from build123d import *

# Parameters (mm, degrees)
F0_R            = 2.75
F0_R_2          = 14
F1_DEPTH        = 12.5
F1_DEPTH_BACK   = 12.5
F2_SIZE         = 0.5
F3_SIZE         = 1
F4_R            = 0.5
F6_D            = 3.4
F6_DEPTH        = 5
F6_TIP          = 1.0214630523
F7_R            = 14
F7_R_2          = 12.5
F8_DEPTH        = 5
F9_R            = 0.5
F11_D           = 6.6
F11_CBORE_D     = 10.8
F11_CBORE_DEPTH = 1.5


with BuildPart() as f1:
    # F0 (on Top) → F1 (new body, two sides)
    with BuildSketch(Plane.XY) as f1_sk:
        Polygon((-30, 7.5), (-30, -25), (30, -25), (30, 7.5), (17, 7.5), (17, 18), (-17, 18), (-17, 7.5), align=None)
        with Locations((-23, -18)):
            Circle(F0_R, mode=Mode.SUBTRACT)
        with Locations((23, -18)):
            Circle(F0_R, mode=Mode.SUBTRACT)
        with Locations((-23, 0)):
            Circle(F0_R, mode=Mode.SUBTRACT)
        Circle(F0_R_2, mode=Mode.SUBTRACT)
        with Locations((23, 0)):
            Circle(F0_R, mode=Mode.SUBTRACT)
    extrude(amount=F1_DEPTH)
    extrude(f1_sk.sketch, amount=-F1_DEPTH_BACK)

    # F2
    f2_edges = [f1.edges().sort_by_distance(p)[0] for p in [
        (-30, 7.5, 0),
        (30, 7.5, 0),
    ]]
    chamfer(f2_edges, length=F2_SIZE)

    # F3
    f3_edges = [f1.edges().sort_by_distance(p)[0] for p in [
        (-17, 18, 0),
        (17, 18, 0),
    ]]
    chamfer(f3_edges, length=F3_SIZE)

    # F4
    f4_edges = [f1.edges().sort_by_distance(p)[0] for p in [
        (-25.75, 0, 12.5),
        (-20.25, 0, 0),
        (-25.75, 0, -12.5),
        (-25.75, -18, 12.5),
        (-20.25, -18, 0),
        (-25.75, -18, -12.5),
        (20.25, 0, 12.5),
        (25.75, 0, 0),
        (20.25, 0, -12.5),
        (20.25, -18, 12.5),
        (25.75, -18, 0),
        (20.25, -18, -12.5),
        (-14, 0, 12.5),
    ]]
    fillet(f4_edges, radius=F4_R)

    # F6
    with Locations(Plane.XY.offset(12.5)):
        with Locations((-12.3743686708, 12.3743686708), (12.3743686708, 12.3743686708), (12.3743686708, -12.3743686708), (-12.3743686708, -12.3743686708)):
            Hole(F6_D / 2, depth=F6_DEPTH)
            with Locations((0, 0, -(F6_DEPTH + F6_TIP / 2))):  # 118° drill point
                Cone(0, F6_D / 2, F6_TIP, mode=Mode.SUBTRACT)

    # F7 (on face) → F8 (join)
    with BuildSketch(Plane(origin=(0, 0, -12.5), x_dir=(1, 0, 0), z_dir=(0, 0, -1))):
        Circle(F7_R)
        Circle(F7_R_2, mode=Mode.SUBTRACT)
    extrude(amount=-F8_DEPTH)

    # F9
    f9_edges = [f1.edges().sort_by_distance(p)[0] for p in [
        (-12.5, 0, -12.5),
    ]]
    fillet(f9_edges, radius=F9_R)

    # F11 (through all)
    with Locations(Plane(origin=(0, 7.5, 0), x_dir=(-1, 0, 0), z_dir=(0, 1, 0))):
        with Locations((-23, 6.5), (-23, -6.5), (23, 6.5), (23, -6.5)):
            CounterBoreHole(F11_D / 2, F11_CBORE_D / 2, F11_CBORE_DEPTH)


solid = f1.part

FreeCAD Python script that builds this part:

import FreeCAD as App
import Part
import Sketcher

V = App.Vector


def edges_at(feature, points):
    """Names of the edges that pass closest to the given points."""
    edges = feature.Shape.Edges
    near = lambda p: min(range(len(edges)), key=lambda i: edges[i].distToShape(Part.Vertex(*p))[0])
    return sorted({f"Edge{near(p) + 1}" for p in points})


def add_polygon(sketch, points):
    """Adds a closed chain of lines whose ends are joined by coincident constraints."""
    first, n = sketch.GeometryCount, len(points)
    for a, b in zip(points, points[1:] + points[:1]):
        sketch.addGeometry(Part.LineSegment(App.Vector(*a, 0), App.Vector(*b, 0)), False)
    for i in range(n):
        sketch.addConstraint(Sketcher.Constraint("Coincident", first + i, 2, first + (i + 1) % n, 1))

doc = App.newDocument("Part")
body = doc.addObject("PartDesign::Body", "Body")

sketch1 = body.newObject("Sketcher::SketchObject", "Sketch")
sketch1.AttachmentSupport = (doc.getObject("XY_Plane"), [""])
sketch1.MapMode = "FlatFace"
add_polygon(sketch1, [(-30, 7.5), (-30, -25), (30, -25), (30, 7.5), (17, 7.5), (17, 18), (-17, 18), (-17, 7.5)])
sketch1.addGeometry(Part.Circle(V(-23, -18, 0), V(0, 0, 1), 2.75), False)
sketch1.addGeometry(Part.Circle(V(23, -18, 0), V(0, 0, 1), 2.75), False)
sketch1.addGeometry(Part.Circle(V(-23, 0, 0), V(0, 0, 1), 2.75), False)
sketch1.addGeometry(Part.Circle(V(0, 0, 0), V(0, 0, 1), 14), False)
sketch1.addGeometry(Part.Circle(V(23, 0, 0), V(0, 0, 1), 2.75), False)
sketch1.addConstraint([
    Sketcher.Constraint("Vertical", 0),
    Sketcher.Constraint("Horizontal", 1),
    Sketcher.Constraint("Vertical", 2),
    Sketcher.Constraint("Horizontal", 3),
    Sketcher.Constraint("Vertical", 4),
    Sketcher.Constraint("Horizontal", 5),
    Sketcher.Constraint("Vertical", 6),
    Sketcher.Constraint("Horizontal", 7),
    Sketcher.Constraint("Coincident", 11, 3, -1, 1),
    Sketcher.Constraint("Equal", 8, 9),
    Sketcher.Constraint("Equal", 9, 10),
    Sketcher.Constraint("Equal", 10, 12),
    Sketcher.Constraint("Symmetric", 10, 3, 12, 3, -1, 1),
    Sketcher.Constraint("Symmetric", 8, 3, 9, 3, -2),
    Sketcher.Constraint("Symmetric", 3, 2, 6, 2, -2),
    Sketcher.Constraint("PointOnObject", 10, 3, -1),
    Sketcher.Constraint("Vertical", 8, 3, 10, 3),
    Sketcher.Constraint("Equal", 3, 7),
    Sketcher.Constraint("Diameter", 11, 28.0),
    Sketcher.Constraint("Diameter", 8, 5.5),
    Sketcher.Constraint("DistanceX", 1, 1, 1, 2, 60.0),
    Sketcher.Constraint("DistanceX", 3, 2, 3, 1, 13.0),
    Sketcher.Constraint("DistanceY", 0, 2, 0, 1, 32.5),
    Sketcher.Constraint("DistanceY", 4, 1, 4, 2, 10.5),
    Sketcher.Constraint("DistanceX", 8, 3, -1, 1, 23.0),
    Sketcher.Constraint("DistanceY", 8, 3, -1, 1, 18.0),
    Sketcher.Constraint("DistanceY", 0, 2, -1, 1, 25.0),
])
pad1 = body.newObject("PartDesign::Pad", "Pad")
pad1.Profile = sketch1
pad1.Type = "TwoLengths"
pad1.Length = 12.5
pad1.Length2 = 12.5
doc.recompute()

chamfer = body.newObject("PartDesign::Chamfer", "Chamfer")
chamfer.Base = (pad1, edges_at(pad1, [(-30, 7.5, 0), (30, 7.5, 0)]))
chamfer.Size = 0.5
doc.recompute()

chamfer2 = body.newObject("PartDesign::Chamfer", "Chamfer001")
chamfer2.Base = (chamfer, edges_at(chamfer, [(-17, 18, 0), (17, 18, 0)]))
chamfer2.Size = 1
doc.recompute()

fillet = body.newObject("PartDesign::Fillet", "Fillet")
fillet.Base = (chamfer2, edges_at(chamfer2, [
    (-25.75, 0, 12.5),
    (-20.25, 0, -6.25),
    (-25.75, 0, -12.5),
    (-25.75, -18, 12.5),
    (-20.25, -18, -6.25),
    (-25.75, -18, -12.5),
    (20.25, 0, 12.5),
    (25.75, 0, -6.25),
    (20.25, 0, -12.5),
    (20.25, -18, 12.5),
    (25.75, -18, -6.25),
    (20.25, -18, -12.5),
    (-14, 0, 12.5),
]))
fillet.Radius = 0.5

sketch2 = body.newObject("Sketcher::SketchObject", "Sketch001")
sketch2.AttachmentSupport = (doc.getObject("XY_Plane"), [""])
sketch2.MapMode = "FlatFace"
sketch2.AttachmentOffset = App.Placement(V(0, 0, 12.5), App.Rotation())
sketch2.addGeometry([
    Part.Circle(V(-12.374369, 12.374369, 0), V(0, 0, 1), 1.7),
    Part.Circle(V(12.374369, 12.374369, 0), V(0, 0, 1), 1.7),
    Part.Circle(V(12.374369, -12.374369, 0), V(0, 0, 1), 1.7),
    Part.Circle(V(-12.374369, -12.374369, 0), V(0, 0, 1), 1.7),
], False)
sketch2.addConstraint([
    Sketcher.Constraint("Equal", 0, 1),
    Sketcher.Constraint("Equal", 1, 2),
    Sketcher.Constraint("Equal", 2, 3),
    Sketcher.Constraint("Symmetric", 0, 3, 2, 3, -1, 1),
    Sketcher.Constraint("Symmetric", 1, 3, 3, 3, -1, 1),
    Sketcher.Constraint("Symmetric", 0, 3, 1, 3, -2),
    Sketcher.Constraint("Diameter", 0, 3.4),
    Sketcher.Constraint("DistanceX", 0, 3, -1, 1, 12.374369),
    Sketcher.Constraint("DistanceY", -1, 1, 0, 3, 12.374369),
])
doc.recompute()
hole = body.newObject("PartDesign::Hole", "Hole")
hole.Profile = sketch2
hole.ThreadType = "None"
hole.Diameter = 3.4
hole.DepthType = "Dimension"
hole.Depth = 5
hole.DrillPoint = "Angled"
hole.DrillPointAngle = 118

sketch3 = body.newObject("Sketcher::SketchObject", "Sketch002")
sketch3.AttachmentSupport = (doc.getObject("XY_Plane"), [""])
sketch3.MapMode = "FlatFace"
sketch3.AttachmentOffset = App.Placement(V(0, 0, -12.5), App.Rotation())
sketch3.addGeometry([
    Part.Circle(V(0, 0, 0), V(0, 0, 1), 14),
    Part.Circle(V(0, 0, 0), V(0, 0, 1), 12.5),
], False)
sketch3.addConstraint([
    Sketcher.Constraint("Coincident", 0, 3, -1, 1),
    Sketcher.Constraint("Coincident", 1, 3, -1, 1),
    Sketcher.Constraint("Diameter", 0, 28.0),
    Sketcher.Constraint("Diameter", 1, 25.0),
])
pad2 = body.newObject("PartDesign::Pad", "Pad001")
pad2.Profile = sketch3
pad2.Length = 5
doc.recompute()

fillet2 = body.newObject("PartDesign::Fillet", "Fillet001")
fillet2.Base = (pad2, edges_at(pad2, [(-12.5, 0, -12.5)]))
fillet2.Radius = 0.5

sketch4 = body.newObject("Sketcher::SketchObject", "Sketch003")
sketch4.AttachmentSupport = (doc.getObject("XZ_Plane"), [""])
sketch4.MapMode = "FlatFace"
sketch4.AttachmentOffset = App.Placement(V(0, 0, -7.5), App.Rotation())
sketch4.addGeometry([
    Part.Circle(V(23, 6.5, 0), V(0, 0, 1), 3.3),
    Part.Circle(V(23, -6.5, 0), V(0, 0, 1), 3.3),
    Part.Circle(V(-23, 6.5, 0), V(0, 0, 1), 3.3),
    Part.Circle(V(-23, -6.5, 0), V(0, 0, 1), 3.3),
], False)
sketch4.addConstraint([
    Sketcher.Constraint("Equal", 0, 1),
    Sketcher.Constraint("Equal", 1, 2),
    Sketcher.Constraint("Equal", 2, 3),
    Sketcher.Constraint("Symmetric", 1, 3, 2, 3, -1, 1),
    Sketcher.Constraint("Symmetric", 0, 3, 3, 3, -1, 1),
    Sketcher.Constraint("Symmetric", 0, 3, 2, 3, -2),
    Sketcher.Constraint("Diameter", 0, 6.6),
    Sketcher.Constraint("DistanceX", -1, 1, 0, 3, 23.0),
    Sketcher.Constraint("DistanceY", 1, 3, 0, 3, 13.0),
])
doc.recompute()
hole2 = body.newObject("PartDesign::Hole", "Hole001")
hole2.Profile = sketch4
hole2.ThreadType = "None"
hole2.Diameter = 6.6
hole2.DepthType = "ThroughAll"
hole2.HoleCutType = "Counterbore"
hole2.HoleCutDiameter = 10.8
hole2.HoleCutDepth = 1.5
hole2.Reversed = True

doc.recompute()
